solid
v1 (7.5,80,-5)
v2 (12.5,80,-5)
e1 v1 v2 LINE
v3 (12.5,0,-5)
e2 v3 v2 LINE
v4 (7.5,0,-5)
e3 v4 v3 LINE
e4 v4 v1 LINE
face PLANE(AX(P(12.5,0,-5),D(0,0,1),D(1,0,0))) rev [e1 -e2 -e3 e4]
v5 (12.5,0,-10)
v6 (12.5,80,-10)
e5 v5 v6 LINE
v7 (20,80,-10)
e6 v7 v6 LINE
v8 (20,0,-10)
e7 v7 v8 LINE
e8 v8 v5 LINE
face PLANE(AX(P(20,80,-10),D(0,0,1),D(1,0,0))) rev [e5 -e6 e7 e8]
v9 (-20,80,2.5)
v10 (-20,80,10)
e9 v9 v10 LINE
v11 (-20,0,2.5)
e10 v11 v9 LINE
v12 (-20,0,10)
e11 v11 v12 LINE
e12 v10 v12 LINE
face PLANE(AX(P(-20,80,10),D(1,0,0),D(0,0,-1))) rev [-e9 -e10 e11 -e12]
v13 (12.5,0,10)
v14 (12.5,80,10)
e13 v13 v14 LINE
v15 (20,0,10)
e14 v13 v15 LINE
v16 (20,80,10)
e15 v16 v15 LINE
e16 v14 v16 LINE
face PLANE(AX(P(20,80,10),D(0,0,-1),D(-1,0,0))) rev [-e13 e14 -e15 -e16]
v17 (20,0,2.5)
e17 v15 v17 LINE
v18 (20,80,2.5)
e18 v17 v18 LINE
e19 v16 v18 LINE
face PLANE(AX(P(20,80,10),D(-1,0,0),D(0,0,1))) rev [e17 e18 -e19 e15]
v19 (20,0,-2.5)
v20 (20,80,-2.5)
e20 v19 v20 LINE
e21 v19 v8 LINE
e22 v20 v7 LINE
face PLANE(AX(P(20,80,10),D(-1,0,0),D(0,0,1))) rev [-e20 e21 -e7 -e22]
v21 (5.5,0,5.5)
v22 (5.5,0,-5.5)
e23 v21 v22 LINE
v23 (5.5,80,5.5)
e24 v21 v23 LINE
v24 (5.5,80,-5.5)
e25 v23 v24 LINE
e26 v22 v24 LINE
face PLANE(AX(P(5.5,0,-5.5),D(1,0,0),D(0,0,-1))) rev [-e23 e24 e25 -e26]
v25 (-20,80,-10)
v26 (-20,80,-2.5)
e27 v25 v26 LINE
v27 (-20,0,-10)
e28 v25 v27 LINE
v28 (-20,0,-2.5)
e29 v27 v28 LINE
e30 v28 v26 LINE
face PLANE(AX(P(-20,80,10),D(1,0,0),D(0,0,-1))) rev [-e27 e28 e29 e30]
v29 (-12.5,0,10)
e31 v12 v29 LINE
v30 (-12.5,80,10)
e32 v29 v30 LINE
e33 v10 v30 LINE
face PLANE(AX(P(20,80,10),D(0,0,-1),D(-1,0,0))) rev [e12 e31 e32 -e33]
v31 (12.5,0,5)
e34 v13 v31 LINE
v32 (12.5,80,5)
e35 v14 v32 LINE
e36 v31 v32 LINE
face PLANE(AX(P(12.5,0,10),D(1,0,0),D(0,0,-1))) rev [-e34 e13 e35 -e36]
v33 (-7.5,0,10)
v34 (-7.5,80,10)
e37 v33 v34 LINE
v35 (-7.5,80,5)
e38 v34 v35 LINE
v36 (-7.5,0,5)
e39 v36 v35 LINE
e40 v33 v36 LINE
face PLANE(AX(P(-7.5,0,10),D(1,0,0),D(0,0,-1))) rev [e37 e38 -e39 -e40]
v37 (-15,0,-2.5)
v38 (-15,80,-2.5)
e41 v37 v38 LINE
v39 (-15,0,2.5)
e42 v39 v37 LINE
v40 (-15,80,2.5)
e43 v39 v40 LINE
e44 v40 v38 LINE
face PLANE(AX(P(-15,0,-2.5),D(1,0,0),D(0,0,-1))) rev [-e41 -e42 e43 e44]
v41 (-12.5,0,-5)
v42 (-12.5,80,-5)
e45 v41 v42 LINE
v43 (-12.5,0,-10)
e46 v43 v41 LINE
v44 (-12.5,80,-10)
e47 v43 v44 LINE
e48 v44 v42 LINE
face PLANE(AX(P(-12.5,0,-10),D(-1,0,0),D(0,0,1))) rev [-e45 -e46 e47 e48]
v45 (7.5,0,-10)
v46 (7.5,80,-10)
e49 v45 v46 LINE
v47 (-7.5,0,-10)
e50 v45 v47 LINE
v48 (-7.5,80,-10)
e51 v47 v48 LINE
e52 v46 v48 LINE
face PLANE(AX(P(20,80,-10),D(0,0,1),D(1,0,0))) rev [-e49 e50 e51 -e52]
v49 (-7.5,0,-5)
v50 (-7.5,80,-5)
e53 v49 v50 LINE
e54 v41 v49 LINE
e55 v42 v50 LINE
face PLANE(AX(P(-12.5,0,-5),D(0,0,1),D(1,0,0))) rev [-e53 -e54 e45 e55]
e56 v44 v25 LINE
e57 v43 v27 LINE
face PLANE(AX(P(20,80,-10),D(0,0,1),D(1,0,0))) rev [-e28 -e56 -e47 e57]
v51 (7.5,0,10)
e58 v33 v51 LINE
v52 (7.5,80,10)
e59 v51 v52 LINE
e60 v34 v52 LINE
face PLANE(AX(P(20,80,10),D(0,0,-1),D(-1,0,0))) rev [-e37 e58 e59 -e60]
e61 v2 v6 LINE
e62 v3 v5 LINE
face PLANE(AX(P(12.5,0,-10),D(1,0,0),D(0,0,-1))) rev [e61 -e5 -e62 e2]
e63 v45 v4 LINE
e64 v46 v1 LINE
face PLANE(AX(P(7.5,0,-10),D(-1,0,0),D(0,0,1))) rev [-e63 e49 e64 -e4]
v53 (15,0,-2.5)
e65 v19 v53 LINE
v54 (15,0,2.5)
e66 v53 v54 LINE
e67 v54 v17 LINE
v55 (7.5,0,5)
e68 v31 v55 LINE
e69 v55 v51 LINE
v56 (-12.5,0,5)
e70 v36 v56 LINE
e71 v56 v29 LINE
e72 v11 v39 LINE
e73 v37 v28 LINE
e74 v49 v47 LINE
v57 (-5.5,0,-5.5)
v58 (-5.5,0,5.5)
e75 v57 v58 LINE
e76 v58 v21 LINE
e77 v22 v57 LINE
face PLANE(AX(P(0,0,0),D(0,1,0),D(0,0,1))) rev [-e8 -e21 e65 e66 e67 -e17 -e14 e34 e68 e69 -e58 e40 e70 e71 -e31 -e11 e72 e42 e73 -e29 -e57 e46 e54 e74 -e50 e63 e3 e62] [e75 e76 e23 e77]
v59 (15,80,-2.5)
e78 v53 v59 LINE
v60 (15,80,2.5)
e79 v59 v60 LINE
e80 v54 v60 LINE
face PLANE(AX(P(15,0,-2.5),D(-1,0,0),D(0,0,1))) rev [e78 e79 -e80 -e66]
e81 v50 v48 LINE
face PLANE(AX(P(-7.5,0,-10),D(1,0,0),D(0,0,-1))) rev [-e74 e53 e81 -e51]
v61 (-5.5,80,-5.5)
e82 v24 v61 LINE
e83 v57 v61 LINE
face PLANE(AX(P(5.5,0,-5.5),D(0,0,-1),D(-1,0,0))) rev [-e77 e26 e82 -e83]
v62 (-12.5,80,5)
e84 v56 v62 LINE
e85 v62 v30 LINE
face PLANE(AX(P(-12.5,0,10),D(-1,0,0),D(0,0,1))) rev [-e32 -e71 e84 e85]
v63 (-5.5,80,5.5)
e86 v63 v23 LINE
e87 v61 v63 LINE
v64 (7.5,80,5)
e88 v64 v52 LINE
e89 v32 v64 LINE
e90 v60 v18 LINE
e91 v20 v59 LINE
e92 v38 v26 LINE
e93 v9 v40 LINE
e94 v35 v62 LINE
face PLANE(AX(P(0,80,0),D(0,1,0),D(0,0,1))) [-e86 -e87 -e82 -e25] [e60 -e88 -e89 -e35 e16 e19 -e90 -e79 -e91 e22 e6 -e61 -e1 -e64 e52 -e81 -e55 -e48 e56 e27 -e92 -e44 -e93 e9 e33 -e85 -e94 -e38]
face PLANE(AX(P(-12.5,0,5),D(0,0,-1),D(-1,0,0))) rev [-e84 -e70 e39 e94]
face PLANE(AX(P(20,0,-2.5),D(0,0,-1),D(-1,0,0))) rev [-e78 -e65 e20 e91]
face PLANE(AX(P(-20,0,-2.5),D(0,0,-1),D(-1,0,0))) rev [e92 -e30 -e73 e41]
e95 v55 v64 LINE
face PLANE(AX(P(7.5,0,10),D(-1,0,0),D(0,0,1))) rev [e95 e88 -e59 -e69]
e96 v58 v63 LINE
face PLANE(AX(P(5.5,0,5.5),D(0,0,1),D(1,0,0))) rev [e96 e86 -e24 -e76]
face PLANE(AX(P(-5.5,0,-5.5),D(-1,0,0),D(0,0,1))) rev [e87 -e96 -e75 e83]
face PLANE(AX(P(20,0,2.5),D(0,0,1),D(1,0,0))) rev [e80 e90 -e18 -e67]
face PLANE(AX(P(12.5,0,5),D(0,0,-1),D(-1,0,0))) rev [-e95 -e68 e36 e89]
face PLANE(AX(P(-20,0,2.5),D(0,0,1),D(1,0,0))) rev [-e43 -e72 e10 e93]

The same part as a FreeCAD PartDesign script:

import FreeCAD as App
import Part
import Sketcher

V = App.Vector
Q = App.Units.Quantity

doc = App.newDocument("Part")
params = doc.addObject("Spreadsheet::Sheet", "Params")
for row, (alias, value) in enumerate([
    ("sketch1_width", "40 mm"),
    ("sketch1_height", "20 mm"),
    ("pad1_length", "80 mm"),
    ("sketch2_width", "5 mm"),
    ("sketch2_width2", "11 mm"),
], start=1):
    params.set(f"A{row}", alias)
    params.set(f"B{row}", "=" + value)
    params.setAlias(f"B{row}", alias)

body = doc.addObject("PartDesign::Body", "Body")

sketch1 = body.newObject("Sketcher::SketchObject", "Sketch")
sketch1.AttachmentSupport = (doc.getObject("XZ_Plane"), [""])
sketch1.MapMode = "FlatFace"
sketch1.addGeometry(Part.LineSegment(V(-20, -10, 0), V(-20, 10, 0)), False)
sketch1.addGeometry(Part.LineSegment(V(-20, 10, 0), V(20, 10, 0)), False)
sketch1.addGeometry(Part.LineSegment(V(20, 10, 0), V(20, -10, 0)), False)
sketch1.addGeometry(Part.LineSegment(V(20, -10, 0), V(-20, -10, 0)), False)
sketch1.addConstraint(Sketcher.Constraint("Coincident", 0, 2, 1, 1))
sketch1.addConstraint(Sketcher.Constraint("Coincident", 1, 2, 2, 1))
sketch1.addConstraint(Sketcher.Constraint("Coincident", 2, 2, 3, 1))
sketch1.addConstraint(Sketcher.Constraint("Coincident", 3, 2, 0, 1))
sketch1.addConstraint(Sketcher.Constraint("Vertical", 0))
sketch1.addConstraint(Sketcher.Constraint("Horizontal", 1))
sketch1.addConstraint(Sketcher.Constraint("Vertical", 2))
sketch1.addConstraint(Sketcher.Constraint("Horizontal", 3))
sketch1.addConstraint(Sketcher.Constraint("Symmetric", 0, 2, 2, 2, -1, 1))
sketch1.addConstraint(Sketcher.Constraint("DistanceX", 1, 1, 1, 2, Q("40 mm")))
sketch1.addConstraint(Sketcher.Constraint("DistanceY", 0, 1, 0, 2, Q("20 mm")))
sketch1.setExpression("Constraints[9]", "Params.sketch1_width")
sketch1.setExpression("Constraints[10]", "Params.sketch1_height")
pad1 = body.newObject("PartDesign::Pad", "Pad")
pad1.Profile = sketch1
pad1.setExpression("Length", "Params.pad1_length")
pad1.Reversed = True

sketch2 = body.newObject("Sketcher::SketchObject", "Sketch001")
sketch2.AttachmentSupport = (doc.getObject("XZ_Plane"), [""])
sketch2.MapMode = "FlatFace"
sketch2.AttachmentOffset = App.Placement(V(0, 0, -80), App.Rotation())
sketch2.addGeometry(Part.LineSegment(V(-12, -10, 0), V(-12, -5, 0)), False)
sketch2.addGeometry(Part.LineSegment(V(-12, -5, 0), V(-8, -5, 0)), False)
sketch2.addGeometry(Part.LineSegment(V(-8, -5, 0), V(-8, -10, 0)), False)
sketch2.addGeometry(Part.LineSegment(V(-8, -10, 0), V(-12, -10, 0)), False)
sketch2.addGeometry(Part.LineSegment(V(-20, -2, 0), V(-20, 2, 0)), False)
sketch2.addGeometry(Part.LineSegment(V(-20, 2, 0), V(-15, 2, 0)), False)
sketch2.addGeometry(Part.LineSegment(V(-15, 2, 0), V(-15, -2, 0)), False)
sketch2.addGeometry(Part.LineSegment(V(-15, -2, 0), V(-20, -2, 0)), False)
sketch2.addGeometry(Part.LineSegment(V(-12, 5, 0), V(-12, 10, 0)), False)
sketch2.addGeometry(Part.LineSegment(V(-12, 10, 0), V(-8, 10, 0)), False)
sketch2.addGeometry(Part.LineSegment(V(-8, 10, 0), V(-8, 5, 0)), False)
sketch2.addGeometry(Part.LineSegment(V(-8, 5, 0), V(-12, 5, 0)), False)
sketch2.addGeometry(Part.LineSegment(V(8, 5, 0), V(8, 10, 0)), False)
sketch2.addGeometry(Part.LineSegment(V(8, 10, 0), V(12, 10, 0)), False)
sketch2.addGeometry(Part.LineSegment(V(12, 10, 0), V(12, 5, 0)), False)
sketch2.addGeometry(Part.LineSegment(V(12, 5, 0), V(8, 5, 0)), False)
sketch2.addGeometry(Part.LineSegment(V(15, -2, 0), V(15, 2, 0)), False)
sketch2.addGeometry(Part.LineSegment(V(15, 2, 0), V(20, 2, 0)), False)
sketch2.addGeometry(Part.LineSegment(V(20, 2, 0), V(20, -2, 0)), False)
sketch2.addGeometry(Part.LineSegment(V(20, -2, 0), V(15, -2, 0)), False)
sketch2.addGeometry(Part.LineSegment(V(8, -10, 0), V(8, -5, 0)), False)
sketch2.addGeometry(Part.LineSegment(V(8, -5, 0), V(12, -5, 0)), False)
sketch2.addGeometry(Part.LineSegment(V(12, -5, 0), V(12, -10, 0)), False)
sketch2.addGeometry(Part.LineSegment(V(12, -10, 0), V(8, -10, 0)), False)
sketch2.addGeometry(Part.LineSegment(V(-6, -6, 0), V(-6, 6, 0)), False)
sketch2.addGeometry(Part.LineSegment(V(-6, 6, 0), V(6, 6, 0)), False)
sketch2.addGeometry(Part.LineSegment(V(6, 6, 0), V(6, -6, 0)), False)
sketch2.addGeometry(Part.LineSegment(V(6, -6, 0), V(-6, -6, 0)), False)
sketch2.addConstraint(Sketcher.Constraint("Coincident", 0, 2, 1, 1))
sketch2.addConstraint(Sketcher.Constraint("Coincident", 1, 2, 2, 1))
sketch2.addConstraint(Sketcher.Constraint("Coincident", 2, 2, 3, 1))
sketch2.addConstraint(Sketcher.Constraint("Coincident", 3, 2, 0, 1))
sketch2.addConstraint(Sketcher.Constraint("Coincident", 4, 2, 5, 1))
sketch2.addConstraint(Sketcher.Constraint("Coincident", 5, 2, 6, 1))
sketch2.addConstraint(Sketcher.Constraint("Coincident", 6, 2, 7, 1))
sketch2.addConstraint(Sketcher.Constraint("Coincident", 7, 2, 4, 1))
sketch2.addConstraint(Sketcher.Constraint("Coincident", 8, 2, 9, 1))
sketch2.addConstraint(Sketcher.Constraint("Coincident", 9, 2, 10, 1))
sketch2.addConstraint(Sketcher.Constraint("Coincident", 10, 2, 11, 1))
sketch2.addConstraint(Sketcher.Constraint("Coincident", 11, 2, 8, 1))
sketch2.addConstraint(Sketcher.Constraint("Coincident", 12, 2, 13, 1))
sketch2.addConstraint(Sketcher.Constraint("Coincident", 13, 2, 14, 1))
sketch2.addConstraint(Sketcher.Constraint("Coincident", 14, 2, 15, 1))
sketch2.addConstraint(Sketcher.Constraint("Coincident", 15, 2, 12, 1))
sketch2.addConstraint(Sketcher.Constraint("Coincident", 16, 2, 17, 1))
sketch2.addConstraint(Sketcher.Constraint("Coincident", 17, 2, 18, 1))
sketch2.addConstraint(Sketcher.Constraint("Coincident", 18, 2, 19, 1))
sketch2.addConstraint(Sketcher.Constraint("Coincident", 19, 2, 16, 1))
sketch2.addConstraint(Sketcher.Constraint("Coincident", 20, 2, 21, 1))
sketch2.addConstraint(Sketcher.Constraint("Coincident", 21, 2, 22, 1))
sketch2.addConstraint(Sketcher.Constraint("Coincident", 22, 2, 23, 1))
sketch2.addConstraint(Sketcher.Constraint("Coincident", 23, 2, 20, 1))
sketch2.addConstraint(Sketcher.Constraint("Coincident", 24, 2, 25, 1))
sketch2.addConstraint(Sketcher.Constraint("Coincident", 25, 2, 26, 1))
sketch2.addConstraint(Sketcher.Constraint("Coincident", 26, 2, 27, 1))
sketch2.addConstraint(Sketcher.Constraint("Coincident", 27, 2, 24, 1))
sketch2.addConstraint(Sketcher.Constraint("Vertical", 0))
sketch2.addConstraint(Sketcher.Constraint("Horizontal", 1))
sketch2.addConstraint(Sketcher.Constraint("Vertical", 2))
sketch2.addConstraint(Sketcher.Constraint("Horizontal", 3))
sketch2.addConstraint(Sketcher.Constraint("Vertical", 4))
sketch2.addConstraint(Sketcher.Constraint("Horizontal", 5))
sketch2.addConstraint(Sketcher.Constraint("Vertical", 6))
sketch2.addConstraint(Sketcher.Constraint("Horizontal", 7))
sketch2.addConstraint(Sketcher.Constraint("Vertical", 8))
sketch2.addConstraint(Sketcher.Constraint("Horizontal", 9))
sketch2.addConstraint(Sketcher.Constraint("Vertical", 10))
sketch2.addConstraint(Sketcher.Constraint("Horizontal", 11))
sketch2.addConstraint(Sketcher.Constraint("Vertical", 12))
sketch2.addConstraint(Sketcher.Constraint("Horizontal", 13))
sketch2.addConstraint(Sketcher.Constraint("Vertical", 14))
sketch2.addConstraint(Sketcher.Constraint("Horizontal", 15))
sketch2.addConstraint(Sketcher.Constraint("Vertical", 16))
sketch2.addConstraint(Sketcher.Constraint("Horizontal", 17))
sketch2.addConstraint(Sketcher.Constraint("Vertical", 18))
sketch2.addConstraint(Sketcher.Constraint("Horizontal", 19))
sketch2.addConstraint(Sketcher.Constraint("Vertical", 20))
sketch2.addConstraint(Sketcher.Constraint("Horizontal", 21))
sketch2.addConstraint(Sketcher.Constraint("Vertical", 22))
sketch2.addConstraint(Sketcher.Constraint("Horizontal", 23))
sketch2.addConstraint(Sketcher.Constraint("Vertical", 24))
sketch2.addConstraint(Sketcher.Constraint("Horizontal", 25))
sketch2.addConstraint(Sketcher.Constraint("Vertical", 26))
sketch2.addConstraint(Sketcher.Constraint("Horizontal", 27))
sketch2.addConstraint(Sketcher.Constraint("Symmetric", 2, 2, 12, 2, -1, 1))
sketch2.addConstraint(Sketcher.Constraint("Symmetric", 0, 2, 14, 2, -1, 1))
sketch2.addConstraint(Sketcher.Constraint("Symmetric", 6, 2, 16, 2, -1, 1))
sketch2.addConstraint(Sketcher.Constraint("Symmetric", 4, 2, 18, 2, -1, 1))
sketch2.addConstraint(Sketcher.Constraint("Symmetric", 10, 2, 20, 2, -1, 1))
sketch2.addConstraint(Sketcher.Constraint("Symmetric", 8, 2, 22, 2, -1, 1))
sketch2.addConstraint(Sketcher.Constraint("Symmetric", 24, 2, 26, 2, -1, 1))
sketch2.addConstraint(Sketcher.Constraint("Symmetric", 9, 2, 12, 2, -2))
sketch2.addConstraint(Sketcher.Constraint("Symmetric", 11, 2, 14, 2, -2))
sketch2.addConstraint(Sketcher.Constraint("Horizontal", 5, 2, 16, 2))
sketch2.addConstraint(Sketcher.Constraint("Equal", 3, 5))
sketch2.addConstraint(Sketcher.Constraint("Equal", 23, 0))
sketch2.addConstraint(Sketcher.Constraint("Equal", 2, 4))
sketch2.addConstraint(Sketcher.Constraint("Equal", 27, 24))
sketch2.addConstraint(Sketcher.Constraint("DistanceX", 1, 1, 1, 2, Q("5 mm")))
sketch2.addConstraint(Sketcher.Constraint("DistanceX", 25, 1, 25, 2, Q("11 mm")))
sketch2.addConstraint(Sketcher.Constraint("DistanceY", 0, 2, -1, 1, Q("5 mm")))
sketch2.addConstraint(Sketcher.Constraint("DistanceX", 4, 2, -1, 1, Q("20 mm")))
sketch2.addConstraint(Sketcher.Constraint("DistanceX", 9, 2, 12, 2, Q("15 mm")))
sketch2.setExpression("Constraints[70]", "Params.sketch2_width")
sketch2.setExpression("Constraints[71]", "Params.sketch2_width2")
pocket1 = body.newObject("PartDesign::Pocket", "Pocket")
pocket1.Profile = sketch2
pocket1.Type = "ThroughAll"
pocket1.Reversed = True

doc.recompute()
